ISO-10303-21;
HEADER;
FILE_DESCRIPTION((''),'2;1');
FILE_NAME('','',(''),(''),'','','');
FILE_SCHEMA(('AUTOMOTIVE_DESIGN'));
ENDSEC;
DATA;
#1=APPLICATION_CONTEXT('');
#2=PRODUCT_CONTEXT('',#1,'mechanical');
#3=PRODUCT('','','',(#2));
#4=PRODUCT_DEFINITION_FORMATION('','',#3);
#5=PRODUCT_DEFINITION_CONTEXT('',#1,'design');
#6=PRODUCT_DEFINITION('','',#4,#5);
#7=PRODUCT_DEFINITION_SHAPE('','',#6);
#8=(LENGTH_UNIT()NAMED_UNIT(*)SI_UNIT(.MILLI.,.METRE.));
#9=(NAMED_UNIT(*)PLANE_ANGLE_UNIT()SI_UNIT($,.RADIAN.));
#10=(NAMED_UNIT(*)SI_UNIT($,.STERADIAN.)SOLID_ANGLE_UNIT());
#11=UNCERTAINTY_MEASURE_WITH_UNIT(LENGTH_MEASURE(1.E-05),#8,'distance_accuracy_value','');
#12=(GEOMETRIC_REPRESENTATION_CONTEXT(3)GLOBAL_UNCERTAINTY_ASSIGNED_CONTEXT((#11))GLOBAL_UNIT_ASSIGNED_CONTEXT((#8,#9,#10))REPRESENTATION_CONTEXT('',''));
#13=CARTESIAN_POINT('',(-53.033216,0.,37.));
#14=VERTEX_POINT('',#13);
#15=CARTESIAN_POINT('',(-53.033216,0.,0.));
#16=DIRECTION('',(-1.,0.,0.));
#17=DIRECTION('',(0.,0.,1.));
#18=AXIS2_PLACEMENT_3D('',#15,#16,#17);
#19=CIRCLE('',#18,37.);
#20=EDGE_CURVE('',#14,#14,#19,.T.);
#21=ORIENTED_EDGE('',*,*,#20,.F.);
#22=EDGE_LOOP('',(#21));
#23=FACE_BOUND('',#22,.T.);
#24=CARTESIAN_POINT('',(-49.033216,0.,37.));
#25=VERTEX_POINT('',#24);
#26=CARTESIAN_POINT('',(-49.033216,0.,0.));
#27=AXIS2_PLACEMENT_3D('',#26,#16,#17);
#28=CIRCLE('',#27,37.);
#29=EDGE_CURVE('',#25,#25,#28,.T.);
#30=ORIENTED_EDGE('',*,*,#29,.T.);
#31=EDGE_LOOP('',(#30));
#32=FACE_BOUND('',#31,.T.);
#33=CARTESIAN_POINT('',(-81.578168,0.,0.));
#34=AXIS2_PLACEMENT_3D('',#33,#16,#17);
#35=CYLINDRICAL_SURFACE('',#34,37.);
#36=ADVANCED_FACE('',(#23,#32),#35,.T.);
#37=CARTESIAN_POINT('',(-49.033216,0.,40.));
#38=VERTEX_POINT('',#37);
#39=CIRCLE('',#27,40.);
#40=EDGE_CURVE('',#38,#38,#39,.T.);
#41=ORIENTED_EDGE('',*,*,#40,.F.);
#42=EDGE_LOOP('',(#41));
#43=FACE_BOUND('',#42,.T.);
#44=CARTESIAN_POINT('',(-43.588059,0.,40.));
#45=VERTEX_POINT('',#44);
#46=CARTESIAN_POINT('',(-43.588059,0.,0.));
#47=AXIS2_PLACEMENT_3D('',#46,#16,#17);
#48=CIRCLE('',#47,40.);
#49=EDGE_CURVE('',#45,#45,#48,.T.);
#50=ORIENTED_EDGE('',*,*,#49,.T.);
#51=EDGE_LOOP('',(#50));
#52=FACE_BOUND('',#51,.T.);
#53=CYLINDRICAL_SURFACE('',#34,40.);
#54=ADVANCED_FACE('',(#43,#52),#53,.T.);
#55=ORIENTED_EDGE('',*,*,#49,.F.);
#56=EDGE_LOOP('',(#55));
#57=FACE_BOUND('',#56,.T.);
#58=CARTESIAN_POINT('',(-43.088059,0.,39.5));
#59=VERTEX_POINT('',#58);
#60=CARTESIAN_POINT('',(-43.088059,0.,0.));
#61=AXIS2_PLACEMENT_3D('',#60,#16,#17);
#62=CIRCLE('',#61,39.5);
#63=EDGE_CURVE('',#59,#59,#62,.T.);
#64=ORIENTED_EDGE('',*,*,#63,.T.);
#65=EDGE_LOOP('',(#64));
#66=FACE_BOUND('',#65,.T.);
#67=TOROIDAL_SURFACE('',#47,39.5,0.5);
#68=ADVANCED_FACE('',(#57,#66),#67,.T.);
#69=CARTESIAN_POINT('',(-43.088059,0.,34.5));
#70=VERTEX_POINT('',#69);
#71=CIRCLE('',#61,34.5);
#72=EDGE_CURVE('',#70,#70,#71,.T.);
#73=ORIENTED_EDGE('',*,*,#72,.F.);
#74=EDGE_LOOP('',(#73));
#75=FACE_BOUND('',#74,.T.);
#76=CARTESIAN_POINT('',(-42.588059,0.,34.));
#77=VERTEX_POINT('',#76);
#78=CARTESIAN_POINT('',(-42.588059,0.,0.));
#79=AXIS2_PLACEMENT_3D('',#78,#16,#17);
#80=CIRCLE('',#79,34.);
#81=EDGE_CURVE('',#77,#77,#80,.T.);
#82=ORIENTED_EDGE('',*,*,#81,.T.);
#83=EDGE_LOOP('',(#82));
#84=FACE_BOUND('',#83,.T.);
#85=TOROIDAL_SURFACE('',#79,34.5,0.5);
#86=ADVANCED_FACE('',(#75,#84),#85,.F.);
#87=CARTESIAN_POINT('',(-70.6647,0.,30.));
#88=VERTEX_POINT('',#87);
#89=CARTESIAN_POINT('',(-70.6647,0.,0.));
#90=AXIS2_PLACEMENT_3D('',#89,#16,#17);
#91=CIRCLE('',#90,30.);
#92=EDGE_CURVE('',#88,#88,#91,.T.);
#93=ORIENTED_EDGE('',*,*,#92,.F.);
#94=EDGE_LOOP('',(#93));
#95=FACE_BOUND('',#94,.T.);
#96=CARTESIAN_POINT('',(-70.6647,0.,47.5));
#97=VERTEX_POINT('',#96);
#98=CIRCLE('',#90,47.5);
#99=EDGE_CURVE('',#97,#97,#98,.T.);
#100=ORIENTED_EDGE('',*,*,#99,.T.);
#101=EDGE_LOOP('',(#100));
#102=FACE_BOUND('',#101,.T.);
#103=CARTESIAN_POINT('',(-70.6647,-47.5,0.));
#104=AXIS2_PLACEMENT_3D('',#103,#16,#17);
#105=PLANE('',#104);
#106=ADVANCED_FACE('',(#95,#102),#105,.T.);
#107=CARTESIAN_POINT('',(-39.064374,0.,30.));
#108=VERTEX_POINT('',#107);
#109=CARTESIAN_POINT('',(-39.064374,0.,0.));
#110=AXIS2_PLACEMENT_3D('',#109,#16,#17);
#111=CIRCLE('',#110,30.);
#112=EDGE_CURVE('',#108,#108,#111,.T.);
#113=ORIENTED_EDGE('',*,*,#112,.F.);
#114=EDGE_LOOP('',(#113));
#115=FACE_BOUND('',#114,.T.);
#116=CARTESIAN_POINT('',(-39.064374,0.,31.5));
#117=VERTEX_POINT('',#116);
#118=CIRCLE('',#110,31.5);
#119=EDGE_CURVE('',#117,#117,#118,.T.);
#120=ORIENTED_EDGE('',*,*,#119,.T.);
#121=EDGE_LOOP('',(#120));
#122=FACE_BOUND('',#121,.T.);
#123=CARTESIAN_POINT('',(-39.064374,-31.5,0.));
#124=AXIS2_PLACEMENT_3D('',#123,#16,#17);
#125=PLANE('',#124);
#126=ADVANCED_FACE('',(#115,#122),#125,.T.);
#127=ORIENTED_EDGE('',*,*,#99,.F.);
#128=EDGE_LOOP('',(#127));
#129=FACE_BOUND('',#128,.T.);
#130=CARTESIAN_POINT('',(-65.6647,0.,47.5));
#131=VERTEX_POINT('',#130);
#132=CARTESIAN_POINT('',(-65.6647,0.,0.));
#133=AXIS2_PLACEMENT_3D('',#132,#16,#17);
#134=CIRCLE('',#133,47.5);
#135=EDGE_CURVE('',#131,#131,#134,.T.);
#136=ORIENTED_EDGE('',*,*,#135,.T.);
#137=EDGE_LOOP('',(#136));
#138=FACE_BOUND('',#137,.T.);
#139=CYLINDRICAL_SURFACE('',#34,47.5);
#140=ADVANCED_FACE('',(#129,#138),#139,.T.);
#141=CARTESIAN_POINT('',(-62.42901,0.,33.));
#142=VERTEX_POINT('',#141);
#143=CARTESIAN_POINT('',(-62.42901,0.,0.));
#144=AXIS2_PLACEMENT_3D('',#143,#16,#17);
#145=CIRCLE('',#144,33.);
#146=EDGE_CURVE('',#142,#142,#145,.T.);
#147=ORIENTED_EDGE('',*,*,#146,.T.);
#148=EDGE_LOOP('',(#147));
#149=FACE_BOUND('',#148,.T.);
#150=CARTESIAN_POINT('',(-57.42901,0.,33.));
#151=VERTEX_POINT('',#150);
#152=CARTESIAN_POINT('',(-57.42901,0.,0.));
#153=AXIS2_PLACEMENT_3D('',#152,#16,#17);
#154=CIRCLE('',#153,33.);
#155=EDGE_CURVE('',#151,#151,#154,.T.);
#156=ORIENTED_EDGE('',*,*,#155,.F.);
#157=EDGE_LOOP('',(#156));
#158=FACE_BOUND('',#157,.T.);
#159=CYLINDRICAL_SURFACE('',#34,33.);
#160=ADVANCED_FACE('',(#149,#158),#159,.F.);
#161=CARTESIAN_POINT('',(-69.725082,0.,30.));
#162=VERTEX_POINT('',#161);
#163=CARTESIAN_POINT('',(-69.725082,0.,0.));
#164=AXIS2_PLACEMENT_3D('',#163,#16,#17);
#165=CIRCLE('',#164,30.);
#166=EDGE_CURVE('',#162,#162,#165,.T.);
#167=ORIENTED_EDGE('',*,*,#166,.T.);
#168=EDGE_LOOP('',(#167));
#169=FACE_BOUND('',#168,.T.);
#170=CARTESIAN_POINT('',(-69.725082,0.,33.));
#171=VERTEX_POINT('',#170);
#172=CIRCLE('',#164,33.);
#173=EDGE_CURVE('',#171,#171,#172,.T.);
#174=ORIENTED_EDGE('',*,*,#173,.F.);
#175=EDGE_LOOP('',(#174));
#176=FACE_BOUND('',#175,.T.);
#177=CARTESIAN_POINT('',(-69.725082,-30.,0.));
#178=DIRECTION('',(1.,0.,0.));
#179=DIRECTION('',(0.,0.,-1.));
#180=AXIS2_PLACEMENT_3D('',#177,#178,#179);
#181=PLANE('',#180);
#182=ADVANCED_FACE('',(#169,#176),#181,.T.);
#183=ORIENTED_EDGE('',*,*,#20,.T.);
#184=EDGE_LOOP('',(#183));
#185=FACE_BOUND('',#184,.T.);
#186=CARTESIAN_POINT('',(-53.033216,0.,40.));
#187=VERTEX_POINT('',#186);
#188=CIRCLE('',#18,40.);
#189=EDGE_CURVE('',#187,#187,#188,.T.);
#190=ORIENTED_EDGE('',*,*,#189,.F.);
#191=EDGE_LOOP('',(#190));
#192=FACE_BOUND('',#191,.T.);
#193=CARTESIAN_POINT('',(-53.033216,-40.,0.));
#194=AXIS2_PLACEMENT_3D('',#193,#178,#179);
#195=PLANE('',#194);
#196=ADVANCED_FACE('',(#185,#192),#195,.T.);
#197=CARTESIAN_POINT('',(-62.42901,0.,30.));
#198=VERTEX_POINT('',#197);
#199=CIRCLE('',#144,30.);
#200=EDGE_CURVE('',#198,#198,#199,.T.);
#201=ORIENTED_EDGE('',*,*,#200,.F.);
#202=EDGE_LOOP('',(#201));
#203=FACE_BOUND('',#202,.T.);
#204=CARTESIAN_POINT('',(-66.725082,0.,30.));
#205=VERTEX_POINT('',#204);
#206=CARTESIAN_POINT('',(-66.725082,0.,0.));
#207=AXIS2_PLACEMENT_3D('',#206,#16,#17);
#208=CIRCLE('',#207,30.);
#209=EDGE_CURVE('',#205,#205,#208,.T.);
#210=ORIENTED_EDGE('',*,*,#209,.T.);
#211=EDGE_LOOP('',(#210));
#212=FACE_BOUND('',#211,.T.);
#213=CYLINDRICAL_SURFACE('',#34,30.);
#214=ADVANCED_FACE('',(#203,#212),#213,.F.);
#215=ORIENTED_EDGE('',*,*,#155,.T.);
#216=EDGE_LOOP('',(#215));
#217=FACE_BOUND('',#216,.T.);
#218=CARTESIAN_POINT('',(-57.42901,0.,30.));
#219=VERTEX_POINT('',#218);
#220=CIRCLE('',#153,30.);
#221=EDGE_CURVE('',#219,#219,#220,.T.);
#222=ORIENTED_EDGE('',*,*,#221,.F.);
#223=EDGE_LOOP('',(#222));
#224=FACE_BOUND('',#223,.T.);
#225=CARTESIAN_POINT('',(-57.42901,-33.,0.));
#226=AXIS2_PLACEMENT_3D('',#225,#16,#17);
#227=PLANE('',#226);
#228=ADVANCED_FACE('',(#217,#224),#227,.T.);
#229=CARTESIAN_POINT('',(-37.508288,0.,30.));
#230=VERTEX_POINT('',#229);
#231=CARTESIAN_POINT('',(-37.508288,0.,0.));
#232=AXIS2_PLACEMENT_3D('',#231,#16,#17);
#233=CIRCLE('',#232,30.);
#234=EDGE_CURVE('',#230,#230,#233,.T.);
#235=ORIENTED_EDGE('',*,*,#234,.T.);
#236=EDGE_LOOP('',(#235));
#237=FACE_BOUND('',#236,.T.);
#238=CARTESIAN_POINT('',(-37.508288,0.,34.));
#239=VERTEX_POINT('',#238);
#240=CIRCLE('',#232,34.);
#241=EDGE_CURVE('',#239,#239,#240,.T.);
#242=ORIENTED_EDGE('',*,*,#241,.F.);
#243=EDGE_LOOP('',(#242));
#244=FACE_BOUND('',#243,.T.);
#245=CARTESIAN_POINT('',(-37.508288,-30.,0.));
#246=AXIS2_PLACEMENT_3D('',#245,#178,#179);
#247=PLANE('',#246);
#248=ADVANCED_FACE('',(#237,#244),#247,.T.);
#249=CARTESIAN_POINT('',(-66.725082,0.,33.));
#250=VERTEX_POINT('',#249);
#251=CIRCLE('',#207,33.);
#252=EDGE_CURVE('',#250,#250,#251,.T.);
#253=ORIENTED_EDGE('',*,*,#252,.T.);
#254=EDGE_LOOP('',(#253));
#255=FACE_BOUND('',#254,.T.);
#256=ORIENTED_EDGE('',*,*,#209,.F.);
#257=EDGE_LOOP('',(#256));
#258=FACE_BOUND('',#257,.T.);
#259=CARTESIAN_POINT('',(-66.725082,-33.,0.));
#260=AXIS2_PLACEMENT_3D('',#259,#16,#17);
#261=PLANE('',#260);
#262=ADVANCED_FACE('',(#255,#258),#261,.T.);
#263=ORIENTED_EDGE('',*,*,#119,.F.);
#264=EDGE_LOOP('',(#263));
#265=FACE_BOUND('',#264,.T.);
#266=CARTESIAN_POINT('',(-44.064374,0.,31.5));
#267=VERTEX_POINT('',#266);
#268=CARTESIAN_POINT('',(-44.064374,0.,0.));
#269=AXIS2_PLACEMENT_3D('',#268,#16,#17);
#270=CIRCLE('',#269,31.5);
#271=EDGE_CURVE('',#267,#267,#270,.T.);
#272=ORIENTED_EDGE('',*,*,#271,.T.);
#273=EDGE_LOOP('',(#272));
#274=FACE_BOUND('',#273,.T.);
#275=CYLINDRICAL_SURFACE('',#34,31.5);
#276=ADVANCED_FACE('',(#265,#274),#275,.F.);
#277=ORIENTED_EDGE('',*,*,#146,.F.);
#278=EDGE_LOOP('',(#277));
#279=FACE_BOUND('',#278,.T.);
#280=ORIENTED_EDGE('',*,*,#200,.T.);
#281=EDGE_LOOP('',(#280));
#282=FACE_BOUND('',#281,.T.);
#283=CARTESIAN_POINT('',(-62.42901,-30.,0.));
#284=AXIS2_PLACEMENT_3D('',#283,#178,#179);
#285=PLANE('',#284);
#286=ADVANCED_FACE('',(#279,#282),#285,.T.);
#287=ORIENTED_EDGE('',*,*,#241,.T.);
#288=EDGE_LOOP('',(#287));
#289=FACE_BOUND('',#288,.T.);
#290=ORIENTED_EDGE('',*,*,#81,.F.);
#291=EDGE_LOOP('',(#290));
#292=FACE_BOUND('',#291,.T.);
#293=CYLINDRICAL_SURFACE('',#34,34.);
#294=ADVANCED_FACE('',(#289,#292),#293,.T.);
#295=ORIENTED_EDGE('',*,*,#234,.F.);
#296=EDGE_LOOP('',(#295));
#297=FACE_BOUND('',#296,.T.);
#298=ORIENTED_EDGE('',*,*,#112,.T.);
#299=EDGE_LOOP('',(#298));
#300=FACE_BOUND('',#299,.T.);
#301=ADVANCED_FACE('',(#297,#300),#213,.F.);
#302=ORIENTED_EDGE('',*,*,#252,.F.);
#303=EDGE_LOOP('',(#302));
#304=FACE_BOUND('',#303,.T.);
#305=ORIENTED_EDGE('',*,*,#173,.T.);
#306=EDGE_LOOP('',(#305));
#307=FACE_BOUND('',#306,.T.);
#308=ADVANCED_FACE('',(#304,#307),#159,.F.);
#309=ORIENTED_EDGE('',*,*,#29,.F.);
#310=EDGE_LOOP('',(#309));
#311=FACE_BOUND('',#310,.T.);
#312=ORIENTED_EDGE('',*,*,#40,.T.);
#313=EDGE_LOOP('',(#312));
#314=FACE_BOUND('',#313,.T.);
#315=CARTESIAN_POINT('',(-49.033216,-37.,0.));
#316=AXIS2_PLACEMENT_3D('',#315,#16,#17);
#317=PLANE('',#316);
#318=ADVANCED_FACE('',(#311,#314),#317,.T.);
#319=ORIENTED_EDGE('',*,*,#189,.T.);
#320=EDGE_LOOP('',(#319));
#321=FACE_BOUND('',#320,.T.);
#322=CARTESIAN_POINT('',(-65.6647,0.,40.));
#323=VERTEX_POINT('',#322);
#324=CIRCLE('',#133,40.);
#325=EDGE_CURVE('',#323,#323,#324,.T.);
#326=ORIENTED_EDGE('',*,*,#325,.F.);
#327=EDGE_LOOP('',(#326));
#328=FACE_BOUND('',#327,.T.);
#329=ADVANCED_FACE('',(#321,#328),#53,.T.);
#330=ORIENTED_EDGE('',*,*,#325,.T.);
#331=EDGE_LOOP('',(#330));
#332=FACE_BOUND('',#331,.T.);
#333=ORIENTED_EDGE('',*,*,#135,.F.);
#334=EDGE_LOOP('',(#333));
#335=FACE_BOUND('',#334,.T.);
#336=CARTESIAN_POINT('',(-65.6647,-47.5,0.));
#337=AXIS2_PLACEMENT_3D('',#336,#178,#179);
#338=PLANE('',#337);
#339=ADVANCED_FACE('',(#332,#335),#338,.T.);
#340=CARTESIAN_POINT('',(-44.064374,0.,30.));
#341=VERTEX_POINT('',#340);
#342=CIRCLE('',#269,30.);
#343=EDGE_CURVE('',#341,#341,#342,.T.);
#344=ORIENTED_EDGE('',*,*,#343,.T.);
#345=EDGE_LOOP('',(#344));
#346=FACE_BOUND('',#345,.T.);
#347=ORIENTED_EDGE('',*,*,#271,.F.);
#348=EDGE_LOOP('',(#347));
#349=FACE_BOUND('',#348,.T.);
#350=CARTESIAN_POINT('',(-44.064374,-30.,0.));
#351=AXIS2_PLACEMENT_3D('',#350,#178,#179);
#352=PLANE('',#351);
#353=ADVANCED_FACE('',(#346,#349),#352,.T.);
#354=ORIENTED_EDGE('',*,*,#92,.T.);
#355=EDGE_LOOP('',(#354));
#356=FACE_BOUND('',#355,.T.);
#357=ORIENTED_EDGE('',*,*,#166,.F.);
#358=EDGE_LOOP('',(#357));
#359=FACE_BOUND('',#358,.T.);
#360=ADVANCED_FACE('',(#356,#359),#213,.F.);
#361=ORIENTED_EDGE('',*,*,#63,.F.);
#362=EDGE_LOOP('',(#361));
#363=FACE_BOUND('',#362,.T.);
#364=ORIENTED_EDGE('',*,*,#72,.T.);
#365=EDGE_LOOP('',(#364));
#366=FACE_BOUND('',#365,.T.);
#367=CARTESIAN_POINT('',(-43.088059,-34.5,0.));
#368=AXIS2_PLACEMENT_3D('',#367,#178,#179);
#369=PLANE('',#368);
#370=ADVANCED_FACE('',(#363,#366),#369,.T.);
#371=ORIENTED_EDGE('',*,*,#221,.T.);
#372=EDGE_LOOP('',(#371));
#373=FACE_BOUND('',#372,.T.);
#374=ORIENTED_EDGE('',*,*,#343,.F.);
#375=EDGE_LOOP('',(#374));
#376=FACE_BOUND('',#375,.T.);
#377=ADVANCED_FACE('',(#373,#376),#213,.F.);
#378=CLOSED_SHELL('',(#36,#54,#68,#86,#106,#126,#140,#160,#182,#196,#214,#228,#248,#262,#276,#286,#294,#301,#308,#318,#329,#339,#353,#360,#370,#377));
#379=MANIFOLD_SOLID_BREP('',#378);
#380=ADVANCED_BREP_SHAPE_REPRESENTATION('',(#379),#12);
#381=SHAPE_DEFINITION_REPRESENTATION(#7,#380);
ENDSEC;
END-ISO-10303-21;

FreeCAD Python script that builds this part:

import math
import FreeCAD as App
import Part
import Sketcher

V = App.Vector

doc = App.newDocument("Part")
body = doc.addObject("PartDesign::Body", "Body")

# Sketch on XY plane
sketch1 = doc.addObject("Sketcher::SketchObject", "Sketch")
body.addObject(sketch1)
sketch1.AttachmentSupport = (doc.XY_Plane, [""])
sketch1.MapMode = "FlatFace"
sketch1.addGeometry([
    Part.LineSegment(V(-70.66, -47.5, 0), V(-65.66, -47.5, 0)),  # 0
    Part.LineSegment(V(-65.66, -47.5, 0), V(-65.66, -40, 0)),  # 1
    Part.LineSegment(V(-65.66, -40, 0), V(-53.03, -40, 0)),  # 2
    Part.LineSegment(V(-53.03, -40, 0), V(-53.03, -37, 0)),  # 3
    Part.LineSegment(V(-53.03, -37, 0), V(-49.03, -37, 0)),  # 4
    Part.LineSegment(V(-49.03, -37, 0), V(-49.03, -40, 0)),  # 5
    Part.LineSegment(V(-49.03, -40, 0), V(-43.59, -40, 0)),  # 6
    Part.ArcOfCircle(Part.Circle(V(-43.59, -39.5, 0), V(0, 0, 1), 0.5), math.radians(-90), math.radians(0)),  # 7
    Part.LineSegment(V(-43.09, -39.5, 0), V(-43.09, -34.5, 0)),  # 8
    Part.ArcOfCircle(Part.Circle(V(-42.59, -34.5, 0), V(0, 0, 1), 0.5), math.radians(90), math.radians(180)),  # 9
    Part.LineSegment(V(-42.59, -34, 0), V(-37.51, -34, 0)),  # 10
    Part.LineSegment(V(-37.51, -34, 0), V(-37.51, -30, 0)),  # 11
    Part.LineSegment(V(-37.51, -30, 0), V(-39.06, -30, 0)),  # 12
    Part.LineSegment(V(-39.06, -30, 0), V(-39.06, -31.5, 0)),  # 13
    Part.LineSegment(V(-39.06, -31.5, 0), V(-44.06, -31.5, 0)),  # 14
    Part.LineSegment(V(-44.06, -31.5, 0), V(-44.06, -30, 0)),  # 15
    Part.LineSegment(V(-44.06, -30, 0), V(-57.43, -30, 0)),  # 16
    Part.LineSegment(V(-57.43, -30, 0), V(-57.43, -33, 0)),  # 17
    Part.LineSegment(V(-57.43, -33, 0), V(-62.43, -33, 0)),  # 18
    Part.LineSegment(V(-62.43, -33, 0), V(-62.43, -30, 0)),  # 19
    Part.LineSegment(V(-62.43, -30, 0), V(-66.73, -30, 0)),  # 20
    Part.LineSegment(V(-66.73, -30, 0), V(-66.73, -33, 0)),  # 21
    Part.LineSegment(V(-66.73, -33, 0), V(-69.73, -33, 0)),  # 22
    Part.LineSegment(V(-69.73, -33, 0), V(-69.73, -30, 0)),  # 23
    Part.LineSegment(V(-69.73, -30, 0), V(-70.66, -30, 0)),  # 24
    Part.LineSegment(V(-70.66, -30, 0), V(-70.66, -47.5, 0)),  # 25
], False)
sketch1.addConstraint([
    Sketcher.Constraint("Coincident", 0, 2, 1, 1),
    Sketcher.Constraint("Coincident", 1, 2, 2, 1),
    Sketcher.Constraint("Coincident", 2, 2, 3, 1),
    Sketcher.Constraint("Coincident", 3, 2, 4, 1),
    Sketcher.Constraint("Coincident", 4, 2, 5, 1),
    Sketcher.Constraint("Coincident", 5, 2, 6, 1),
    Sketcher.Constraint("Tangent", 6, 2, 7, 1),
    Sketcher.Constraint("Tangent", 7, 2, 8, 1),
    Sketcher.Constraint("Tangent", 8, 2, 9, 2),
    Sketcher.Constraint("Tangent", 9, 1, 10, 1),
    Sketcher.Constraint("Coincident", 10, 2, 11, 1),
    Sketcher.Constraint("Coincident", 11, 2, 12, 1),
    Sketcher.Constraint("Coincident", 12, 2, 13, 1),
    Sketcher.Constraint("Coincident", 13, 2, 14, 1),
    Sketcher.Constraint("Coincident", 14, 2, 15, 1),
    Sketcher.Constraint("Coincident", 15, 2, 16, 1),
    Sketcher.Constraint("Coincident", 16, 2, 17, 1),
    Sketcher.Constraint("Coincident", 17, 2, 18, 1),
    Sketcher.Constraint("Coincident", 18, 2, 19, 1),
    Sketcher.Constraint("Coincident", 19, 2, 20, 1),
    Sketcher.Constraint("Coincident", 20, 2, 21, 1),
    Sketcher.Constraint("Coincident", 21, 2, 22, 1),
    Sketcher.Constraint("Coincident", 22, 2, 23, 1),
    Sketcher.Constraint("Coincident", 23, 2, 24, 1),
    Sketcher.Constraint("Coincident", 24, 2, 25, 1),
    Sketcher.Constraint("Coincident", 25, 2, 0, 1),
    Sketcher.Constraint("Horizontal", 0),
    Sketcher.Constraint("Vertical", 1),
    Sketcher.Constraint("Horizontal", 2),
    Sketcher.Constraint("Vertical", 3),
    Sketcher.Constraint("Horizontal", 4),
    Sketcher.Constraint("Vertical", 5),
    Sketcher.Constraint("Horizontal", 6),
    Sketcher.Constraint("Vertical", 8),
    Sketcher.Constraint("Horizontal", 10),
    Sketcher.Constraint("Vertical", 11),
    Sketcher.Constraint("Horizontal", 12),
    Sketcher.Constraint("Vertical", 13),
    Sketcher.Constraint("Horizontal", 14),
    Sketcher.Constraint("Vertical", 15),
    Sketcher.Constraint("Horizontal", 16),
    Sketcher.Constraint("Vertical", 17),
    Sketcher.Constraint("Horizontal", 18),
    Sketcher.Constraint("Vertical", 19),
    Sketcher.Constraint("Horizontal", 20),
    Sketcher.Constraint("Vertical", 21),
    Sketcher.Constraint("Horizontal", 22),
    Sketcher.Constraint("Vertical", 23),
    Sketcher.Constraint("Horizontal", 24),
    Sketcher.Constraint("Vertical", 25),
    Sketcher.Constraint("Equal", 7, 9),
    Sketcher.Constraint("Horizontal", 2, 2, 5, 2),
    Sketcher.Constraint("Horizontal", 12, 2, 15, 2),
    Sketcher.Constraint("Horizontal", 16, 2, 19, 2),
    Sketcher.Constraint("Horizontal", 18, 2, 21, 2),
    Sketcher.Constraint("Horizontal", 20, 2, 23, 2),
    Sketcher.Constraint("Equal", 0, 14),
    Sketcher.Constraint("Equal", 14, 18),
    Sketcher.Constraint("Equal", 22, 3),
    Sketcher.Constraint("Equal", 18, 8),
    Sketcher.Constraint("Equal", 4, 11),
    Sketcher.Constraint("Equal", 5, 17),
    Sketcher.Constraint("Radius", 7, 0.5),
    Sketcher.Constraint("DistanceX", 0, 1, 0, 2, 5.0),
    Sketcher.Constraint("DistanceX", 4, 1, 4, 2, 4.0),
    Sketcher.Constraint("DistanceX", 22, 2, 22, 1, 3.0),
    Sketcher.Constraint("DistanceY", 1, 1, 1, 2, 7.5),
    Sketcher.Constraint("DistanceY", 13, 2, 13, 1, 1.5),
    Sketcher.Constraint("DistanceY", 1, 2, -1, 1, 40.0),
    Sketcher.Constraint("DistanceX", 10, 1, 10, 2, 5.079771),
    Sketcher.Constraint("DistanceX", 24, 2, 24, 1, 0.939618),
    Sketcher.Constraint("DistanceX", 0, 2, -1, 1, 65.6647),
    Sketcher.Constraint("DistanceX", 2, 1, 2, 2, 12.631485),
    Sketcher.Constraint("DistanceX", 6, 1, 6, 2, 5.445157),
    Sketcher.Constraint("DistanceX", 12, 2, 12, 1, 1.556087),
    Sketcher.Constraint("DistanceX", 16, 2, 16, 1, 13.364636),
])
revolution = doc.addObject("PartDesign::Revolution", "Revolution")
body.addObject(revolution)
revolution.Profile = sketch1
revolution.ReferenceAxis = (sketch1, ["H_Axis"])
revolution.Angle = 360

doc.recompute()
